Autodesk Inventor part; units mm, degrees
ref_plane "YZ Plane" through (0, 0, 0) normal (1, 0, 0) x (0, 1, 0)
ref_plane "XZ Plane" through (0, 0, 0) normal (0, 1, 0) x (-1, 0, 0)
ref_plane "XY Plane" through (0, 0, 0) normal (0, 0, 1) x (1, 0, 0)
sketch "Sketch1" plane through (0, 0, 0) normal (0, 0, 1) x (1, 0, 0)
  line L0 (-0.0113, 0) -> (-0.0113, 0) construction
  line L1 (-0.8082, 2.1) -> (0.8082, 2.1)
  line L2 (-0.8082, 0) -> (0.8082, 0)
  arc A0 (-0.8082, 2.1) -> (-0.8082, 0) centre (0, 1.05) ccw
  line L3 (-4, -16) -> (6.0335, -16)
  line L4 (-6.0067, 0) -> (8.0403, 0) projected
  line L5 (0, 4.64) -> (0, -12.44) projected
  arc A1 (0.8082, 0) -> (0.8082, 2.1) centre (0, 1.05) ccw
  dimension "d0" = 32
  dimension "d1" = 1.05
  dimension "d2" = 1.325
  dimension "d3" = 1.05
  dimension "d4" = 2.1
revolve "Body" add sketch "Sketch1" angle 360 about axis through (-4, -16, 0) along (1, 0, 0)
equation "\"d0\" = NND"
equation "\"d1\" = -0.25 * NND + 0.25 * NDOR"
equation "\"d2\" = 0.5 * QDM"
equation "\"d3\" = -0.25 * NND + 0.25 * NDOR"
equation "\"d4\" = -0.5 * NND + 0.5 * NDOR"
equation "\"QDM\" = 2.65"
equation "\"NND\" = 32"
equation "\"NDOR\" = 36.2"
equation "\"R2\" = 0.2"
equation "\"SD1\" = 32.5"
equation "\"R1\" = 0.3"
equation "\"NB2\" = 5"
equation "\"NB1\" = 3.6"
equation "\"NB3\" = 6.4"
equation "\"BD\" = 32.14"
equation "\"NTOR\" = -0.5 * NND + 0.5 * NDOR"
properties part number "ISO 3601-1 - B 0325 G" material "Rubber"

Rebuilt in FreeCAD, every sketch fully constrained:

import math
import FreeCAD as App
import Part
import Sketcher

doc = App.newDocument("Part")
body = doc.addObject("PartDesign::Body", "Body")

# Sketch on XY plane
sketch1 = doc.addObject("Sketcher::SketchObject", "Sketch")
body.addObject(sketch1)
sketch1.AttachmentSupport = (doc.XY_Plane, [""])
sketch1.MapMode = "FlatFace"
sketch1.addGeometry(Part.ArcOfCircle(Part.Circle(App.Vector(0, 1.1, 0), App.Vector(0, 0, 1), 1.3), math.radians(128), math.radians(232)), False)
sketch1.addGeometry(Part.LineSegment(App.Vector(-0.8, 0, 0), App.Vector(0.8, 0, 0)), False)
sketch1.addGeometry(Part.ArcOfCircle(Part.Circle(App.Vector(0, 1.1, 0), App.Vector(0, 0, 1), 1.3), math.radians(-52), math.radians(52)), False)
sketch1.addGeometry(Part.LineSegment(App.Vector(0.8, 2.1, 0), App.Vector(-0.8, 2.1, 0)), False)
sketch1.addGeometry(Part.LineSegment(App.Vector(-0.8, -16, 0), App.Vector(0.8, -16, 0)), True)  # axis
sketch1.addConstraint(Sketcher.Constraint("Coincident", 0, 2, 1, 1))
sketch1.addConstraint(Sketcher.Constraint("Coincident", 1, 2, 2, 1))
sketch1.addConstraint(Sketcher.Constraint("Coincident", 2, 2, 3, 1))
sketch1.addConstraint(Sketcher.Constraint("Coincident", 3, 2, 0, 1))
sketch1.addConstraint(Sketcher.Constraint("Horizontal", 1))
sketch1.addConstraint(Sketcher.Constraint("Horizontal", 3))
sketch1.addConstraint(Sketcher.Constraint("Horizontal", 4))
sketch1.addConstraint(Sketcher.Constraint("Coincident", 2, 3, 0, 3))
sketch1.addConstraint(Sketcher.Constraint("Equal", 0, 2))
sketch1.addConstraint(Sketcher.Constraint("Symmetric", 0, 2, 1, 2, -1, 1))
sketch1.addConstraint(Sketcher.Constraint("Vertical", 1, 2, 2, 2))
sketch1.addConstraint(Sketcher.Constraint("Vertical", 3, 2, 4, 1))
sketch1.addConstraint(Sketcher.Constraint("Vertical", 2, 2, 4, 2))
sketch1.addConstraint(Sketcher.Constraint("Radius", 0, 1.325))
sketch1.addConstraint(Sketcher.Constraint("DistanceY", -1, 1, 2, 2, 2.1))
sketch1.addConstraint(Sketcher.Constraint("DistanceY", 4, 1, -1, 1, 16.0))
revolution = doc.addObject("PartDesign::Revolution", "Revolution")
body.addObject(revolution)
revolution.Profile = sketch1
revolution.ReferenceAxis = (sketch1, ["Axis0"])
revolution.Angle = 360

doc.recompute()
